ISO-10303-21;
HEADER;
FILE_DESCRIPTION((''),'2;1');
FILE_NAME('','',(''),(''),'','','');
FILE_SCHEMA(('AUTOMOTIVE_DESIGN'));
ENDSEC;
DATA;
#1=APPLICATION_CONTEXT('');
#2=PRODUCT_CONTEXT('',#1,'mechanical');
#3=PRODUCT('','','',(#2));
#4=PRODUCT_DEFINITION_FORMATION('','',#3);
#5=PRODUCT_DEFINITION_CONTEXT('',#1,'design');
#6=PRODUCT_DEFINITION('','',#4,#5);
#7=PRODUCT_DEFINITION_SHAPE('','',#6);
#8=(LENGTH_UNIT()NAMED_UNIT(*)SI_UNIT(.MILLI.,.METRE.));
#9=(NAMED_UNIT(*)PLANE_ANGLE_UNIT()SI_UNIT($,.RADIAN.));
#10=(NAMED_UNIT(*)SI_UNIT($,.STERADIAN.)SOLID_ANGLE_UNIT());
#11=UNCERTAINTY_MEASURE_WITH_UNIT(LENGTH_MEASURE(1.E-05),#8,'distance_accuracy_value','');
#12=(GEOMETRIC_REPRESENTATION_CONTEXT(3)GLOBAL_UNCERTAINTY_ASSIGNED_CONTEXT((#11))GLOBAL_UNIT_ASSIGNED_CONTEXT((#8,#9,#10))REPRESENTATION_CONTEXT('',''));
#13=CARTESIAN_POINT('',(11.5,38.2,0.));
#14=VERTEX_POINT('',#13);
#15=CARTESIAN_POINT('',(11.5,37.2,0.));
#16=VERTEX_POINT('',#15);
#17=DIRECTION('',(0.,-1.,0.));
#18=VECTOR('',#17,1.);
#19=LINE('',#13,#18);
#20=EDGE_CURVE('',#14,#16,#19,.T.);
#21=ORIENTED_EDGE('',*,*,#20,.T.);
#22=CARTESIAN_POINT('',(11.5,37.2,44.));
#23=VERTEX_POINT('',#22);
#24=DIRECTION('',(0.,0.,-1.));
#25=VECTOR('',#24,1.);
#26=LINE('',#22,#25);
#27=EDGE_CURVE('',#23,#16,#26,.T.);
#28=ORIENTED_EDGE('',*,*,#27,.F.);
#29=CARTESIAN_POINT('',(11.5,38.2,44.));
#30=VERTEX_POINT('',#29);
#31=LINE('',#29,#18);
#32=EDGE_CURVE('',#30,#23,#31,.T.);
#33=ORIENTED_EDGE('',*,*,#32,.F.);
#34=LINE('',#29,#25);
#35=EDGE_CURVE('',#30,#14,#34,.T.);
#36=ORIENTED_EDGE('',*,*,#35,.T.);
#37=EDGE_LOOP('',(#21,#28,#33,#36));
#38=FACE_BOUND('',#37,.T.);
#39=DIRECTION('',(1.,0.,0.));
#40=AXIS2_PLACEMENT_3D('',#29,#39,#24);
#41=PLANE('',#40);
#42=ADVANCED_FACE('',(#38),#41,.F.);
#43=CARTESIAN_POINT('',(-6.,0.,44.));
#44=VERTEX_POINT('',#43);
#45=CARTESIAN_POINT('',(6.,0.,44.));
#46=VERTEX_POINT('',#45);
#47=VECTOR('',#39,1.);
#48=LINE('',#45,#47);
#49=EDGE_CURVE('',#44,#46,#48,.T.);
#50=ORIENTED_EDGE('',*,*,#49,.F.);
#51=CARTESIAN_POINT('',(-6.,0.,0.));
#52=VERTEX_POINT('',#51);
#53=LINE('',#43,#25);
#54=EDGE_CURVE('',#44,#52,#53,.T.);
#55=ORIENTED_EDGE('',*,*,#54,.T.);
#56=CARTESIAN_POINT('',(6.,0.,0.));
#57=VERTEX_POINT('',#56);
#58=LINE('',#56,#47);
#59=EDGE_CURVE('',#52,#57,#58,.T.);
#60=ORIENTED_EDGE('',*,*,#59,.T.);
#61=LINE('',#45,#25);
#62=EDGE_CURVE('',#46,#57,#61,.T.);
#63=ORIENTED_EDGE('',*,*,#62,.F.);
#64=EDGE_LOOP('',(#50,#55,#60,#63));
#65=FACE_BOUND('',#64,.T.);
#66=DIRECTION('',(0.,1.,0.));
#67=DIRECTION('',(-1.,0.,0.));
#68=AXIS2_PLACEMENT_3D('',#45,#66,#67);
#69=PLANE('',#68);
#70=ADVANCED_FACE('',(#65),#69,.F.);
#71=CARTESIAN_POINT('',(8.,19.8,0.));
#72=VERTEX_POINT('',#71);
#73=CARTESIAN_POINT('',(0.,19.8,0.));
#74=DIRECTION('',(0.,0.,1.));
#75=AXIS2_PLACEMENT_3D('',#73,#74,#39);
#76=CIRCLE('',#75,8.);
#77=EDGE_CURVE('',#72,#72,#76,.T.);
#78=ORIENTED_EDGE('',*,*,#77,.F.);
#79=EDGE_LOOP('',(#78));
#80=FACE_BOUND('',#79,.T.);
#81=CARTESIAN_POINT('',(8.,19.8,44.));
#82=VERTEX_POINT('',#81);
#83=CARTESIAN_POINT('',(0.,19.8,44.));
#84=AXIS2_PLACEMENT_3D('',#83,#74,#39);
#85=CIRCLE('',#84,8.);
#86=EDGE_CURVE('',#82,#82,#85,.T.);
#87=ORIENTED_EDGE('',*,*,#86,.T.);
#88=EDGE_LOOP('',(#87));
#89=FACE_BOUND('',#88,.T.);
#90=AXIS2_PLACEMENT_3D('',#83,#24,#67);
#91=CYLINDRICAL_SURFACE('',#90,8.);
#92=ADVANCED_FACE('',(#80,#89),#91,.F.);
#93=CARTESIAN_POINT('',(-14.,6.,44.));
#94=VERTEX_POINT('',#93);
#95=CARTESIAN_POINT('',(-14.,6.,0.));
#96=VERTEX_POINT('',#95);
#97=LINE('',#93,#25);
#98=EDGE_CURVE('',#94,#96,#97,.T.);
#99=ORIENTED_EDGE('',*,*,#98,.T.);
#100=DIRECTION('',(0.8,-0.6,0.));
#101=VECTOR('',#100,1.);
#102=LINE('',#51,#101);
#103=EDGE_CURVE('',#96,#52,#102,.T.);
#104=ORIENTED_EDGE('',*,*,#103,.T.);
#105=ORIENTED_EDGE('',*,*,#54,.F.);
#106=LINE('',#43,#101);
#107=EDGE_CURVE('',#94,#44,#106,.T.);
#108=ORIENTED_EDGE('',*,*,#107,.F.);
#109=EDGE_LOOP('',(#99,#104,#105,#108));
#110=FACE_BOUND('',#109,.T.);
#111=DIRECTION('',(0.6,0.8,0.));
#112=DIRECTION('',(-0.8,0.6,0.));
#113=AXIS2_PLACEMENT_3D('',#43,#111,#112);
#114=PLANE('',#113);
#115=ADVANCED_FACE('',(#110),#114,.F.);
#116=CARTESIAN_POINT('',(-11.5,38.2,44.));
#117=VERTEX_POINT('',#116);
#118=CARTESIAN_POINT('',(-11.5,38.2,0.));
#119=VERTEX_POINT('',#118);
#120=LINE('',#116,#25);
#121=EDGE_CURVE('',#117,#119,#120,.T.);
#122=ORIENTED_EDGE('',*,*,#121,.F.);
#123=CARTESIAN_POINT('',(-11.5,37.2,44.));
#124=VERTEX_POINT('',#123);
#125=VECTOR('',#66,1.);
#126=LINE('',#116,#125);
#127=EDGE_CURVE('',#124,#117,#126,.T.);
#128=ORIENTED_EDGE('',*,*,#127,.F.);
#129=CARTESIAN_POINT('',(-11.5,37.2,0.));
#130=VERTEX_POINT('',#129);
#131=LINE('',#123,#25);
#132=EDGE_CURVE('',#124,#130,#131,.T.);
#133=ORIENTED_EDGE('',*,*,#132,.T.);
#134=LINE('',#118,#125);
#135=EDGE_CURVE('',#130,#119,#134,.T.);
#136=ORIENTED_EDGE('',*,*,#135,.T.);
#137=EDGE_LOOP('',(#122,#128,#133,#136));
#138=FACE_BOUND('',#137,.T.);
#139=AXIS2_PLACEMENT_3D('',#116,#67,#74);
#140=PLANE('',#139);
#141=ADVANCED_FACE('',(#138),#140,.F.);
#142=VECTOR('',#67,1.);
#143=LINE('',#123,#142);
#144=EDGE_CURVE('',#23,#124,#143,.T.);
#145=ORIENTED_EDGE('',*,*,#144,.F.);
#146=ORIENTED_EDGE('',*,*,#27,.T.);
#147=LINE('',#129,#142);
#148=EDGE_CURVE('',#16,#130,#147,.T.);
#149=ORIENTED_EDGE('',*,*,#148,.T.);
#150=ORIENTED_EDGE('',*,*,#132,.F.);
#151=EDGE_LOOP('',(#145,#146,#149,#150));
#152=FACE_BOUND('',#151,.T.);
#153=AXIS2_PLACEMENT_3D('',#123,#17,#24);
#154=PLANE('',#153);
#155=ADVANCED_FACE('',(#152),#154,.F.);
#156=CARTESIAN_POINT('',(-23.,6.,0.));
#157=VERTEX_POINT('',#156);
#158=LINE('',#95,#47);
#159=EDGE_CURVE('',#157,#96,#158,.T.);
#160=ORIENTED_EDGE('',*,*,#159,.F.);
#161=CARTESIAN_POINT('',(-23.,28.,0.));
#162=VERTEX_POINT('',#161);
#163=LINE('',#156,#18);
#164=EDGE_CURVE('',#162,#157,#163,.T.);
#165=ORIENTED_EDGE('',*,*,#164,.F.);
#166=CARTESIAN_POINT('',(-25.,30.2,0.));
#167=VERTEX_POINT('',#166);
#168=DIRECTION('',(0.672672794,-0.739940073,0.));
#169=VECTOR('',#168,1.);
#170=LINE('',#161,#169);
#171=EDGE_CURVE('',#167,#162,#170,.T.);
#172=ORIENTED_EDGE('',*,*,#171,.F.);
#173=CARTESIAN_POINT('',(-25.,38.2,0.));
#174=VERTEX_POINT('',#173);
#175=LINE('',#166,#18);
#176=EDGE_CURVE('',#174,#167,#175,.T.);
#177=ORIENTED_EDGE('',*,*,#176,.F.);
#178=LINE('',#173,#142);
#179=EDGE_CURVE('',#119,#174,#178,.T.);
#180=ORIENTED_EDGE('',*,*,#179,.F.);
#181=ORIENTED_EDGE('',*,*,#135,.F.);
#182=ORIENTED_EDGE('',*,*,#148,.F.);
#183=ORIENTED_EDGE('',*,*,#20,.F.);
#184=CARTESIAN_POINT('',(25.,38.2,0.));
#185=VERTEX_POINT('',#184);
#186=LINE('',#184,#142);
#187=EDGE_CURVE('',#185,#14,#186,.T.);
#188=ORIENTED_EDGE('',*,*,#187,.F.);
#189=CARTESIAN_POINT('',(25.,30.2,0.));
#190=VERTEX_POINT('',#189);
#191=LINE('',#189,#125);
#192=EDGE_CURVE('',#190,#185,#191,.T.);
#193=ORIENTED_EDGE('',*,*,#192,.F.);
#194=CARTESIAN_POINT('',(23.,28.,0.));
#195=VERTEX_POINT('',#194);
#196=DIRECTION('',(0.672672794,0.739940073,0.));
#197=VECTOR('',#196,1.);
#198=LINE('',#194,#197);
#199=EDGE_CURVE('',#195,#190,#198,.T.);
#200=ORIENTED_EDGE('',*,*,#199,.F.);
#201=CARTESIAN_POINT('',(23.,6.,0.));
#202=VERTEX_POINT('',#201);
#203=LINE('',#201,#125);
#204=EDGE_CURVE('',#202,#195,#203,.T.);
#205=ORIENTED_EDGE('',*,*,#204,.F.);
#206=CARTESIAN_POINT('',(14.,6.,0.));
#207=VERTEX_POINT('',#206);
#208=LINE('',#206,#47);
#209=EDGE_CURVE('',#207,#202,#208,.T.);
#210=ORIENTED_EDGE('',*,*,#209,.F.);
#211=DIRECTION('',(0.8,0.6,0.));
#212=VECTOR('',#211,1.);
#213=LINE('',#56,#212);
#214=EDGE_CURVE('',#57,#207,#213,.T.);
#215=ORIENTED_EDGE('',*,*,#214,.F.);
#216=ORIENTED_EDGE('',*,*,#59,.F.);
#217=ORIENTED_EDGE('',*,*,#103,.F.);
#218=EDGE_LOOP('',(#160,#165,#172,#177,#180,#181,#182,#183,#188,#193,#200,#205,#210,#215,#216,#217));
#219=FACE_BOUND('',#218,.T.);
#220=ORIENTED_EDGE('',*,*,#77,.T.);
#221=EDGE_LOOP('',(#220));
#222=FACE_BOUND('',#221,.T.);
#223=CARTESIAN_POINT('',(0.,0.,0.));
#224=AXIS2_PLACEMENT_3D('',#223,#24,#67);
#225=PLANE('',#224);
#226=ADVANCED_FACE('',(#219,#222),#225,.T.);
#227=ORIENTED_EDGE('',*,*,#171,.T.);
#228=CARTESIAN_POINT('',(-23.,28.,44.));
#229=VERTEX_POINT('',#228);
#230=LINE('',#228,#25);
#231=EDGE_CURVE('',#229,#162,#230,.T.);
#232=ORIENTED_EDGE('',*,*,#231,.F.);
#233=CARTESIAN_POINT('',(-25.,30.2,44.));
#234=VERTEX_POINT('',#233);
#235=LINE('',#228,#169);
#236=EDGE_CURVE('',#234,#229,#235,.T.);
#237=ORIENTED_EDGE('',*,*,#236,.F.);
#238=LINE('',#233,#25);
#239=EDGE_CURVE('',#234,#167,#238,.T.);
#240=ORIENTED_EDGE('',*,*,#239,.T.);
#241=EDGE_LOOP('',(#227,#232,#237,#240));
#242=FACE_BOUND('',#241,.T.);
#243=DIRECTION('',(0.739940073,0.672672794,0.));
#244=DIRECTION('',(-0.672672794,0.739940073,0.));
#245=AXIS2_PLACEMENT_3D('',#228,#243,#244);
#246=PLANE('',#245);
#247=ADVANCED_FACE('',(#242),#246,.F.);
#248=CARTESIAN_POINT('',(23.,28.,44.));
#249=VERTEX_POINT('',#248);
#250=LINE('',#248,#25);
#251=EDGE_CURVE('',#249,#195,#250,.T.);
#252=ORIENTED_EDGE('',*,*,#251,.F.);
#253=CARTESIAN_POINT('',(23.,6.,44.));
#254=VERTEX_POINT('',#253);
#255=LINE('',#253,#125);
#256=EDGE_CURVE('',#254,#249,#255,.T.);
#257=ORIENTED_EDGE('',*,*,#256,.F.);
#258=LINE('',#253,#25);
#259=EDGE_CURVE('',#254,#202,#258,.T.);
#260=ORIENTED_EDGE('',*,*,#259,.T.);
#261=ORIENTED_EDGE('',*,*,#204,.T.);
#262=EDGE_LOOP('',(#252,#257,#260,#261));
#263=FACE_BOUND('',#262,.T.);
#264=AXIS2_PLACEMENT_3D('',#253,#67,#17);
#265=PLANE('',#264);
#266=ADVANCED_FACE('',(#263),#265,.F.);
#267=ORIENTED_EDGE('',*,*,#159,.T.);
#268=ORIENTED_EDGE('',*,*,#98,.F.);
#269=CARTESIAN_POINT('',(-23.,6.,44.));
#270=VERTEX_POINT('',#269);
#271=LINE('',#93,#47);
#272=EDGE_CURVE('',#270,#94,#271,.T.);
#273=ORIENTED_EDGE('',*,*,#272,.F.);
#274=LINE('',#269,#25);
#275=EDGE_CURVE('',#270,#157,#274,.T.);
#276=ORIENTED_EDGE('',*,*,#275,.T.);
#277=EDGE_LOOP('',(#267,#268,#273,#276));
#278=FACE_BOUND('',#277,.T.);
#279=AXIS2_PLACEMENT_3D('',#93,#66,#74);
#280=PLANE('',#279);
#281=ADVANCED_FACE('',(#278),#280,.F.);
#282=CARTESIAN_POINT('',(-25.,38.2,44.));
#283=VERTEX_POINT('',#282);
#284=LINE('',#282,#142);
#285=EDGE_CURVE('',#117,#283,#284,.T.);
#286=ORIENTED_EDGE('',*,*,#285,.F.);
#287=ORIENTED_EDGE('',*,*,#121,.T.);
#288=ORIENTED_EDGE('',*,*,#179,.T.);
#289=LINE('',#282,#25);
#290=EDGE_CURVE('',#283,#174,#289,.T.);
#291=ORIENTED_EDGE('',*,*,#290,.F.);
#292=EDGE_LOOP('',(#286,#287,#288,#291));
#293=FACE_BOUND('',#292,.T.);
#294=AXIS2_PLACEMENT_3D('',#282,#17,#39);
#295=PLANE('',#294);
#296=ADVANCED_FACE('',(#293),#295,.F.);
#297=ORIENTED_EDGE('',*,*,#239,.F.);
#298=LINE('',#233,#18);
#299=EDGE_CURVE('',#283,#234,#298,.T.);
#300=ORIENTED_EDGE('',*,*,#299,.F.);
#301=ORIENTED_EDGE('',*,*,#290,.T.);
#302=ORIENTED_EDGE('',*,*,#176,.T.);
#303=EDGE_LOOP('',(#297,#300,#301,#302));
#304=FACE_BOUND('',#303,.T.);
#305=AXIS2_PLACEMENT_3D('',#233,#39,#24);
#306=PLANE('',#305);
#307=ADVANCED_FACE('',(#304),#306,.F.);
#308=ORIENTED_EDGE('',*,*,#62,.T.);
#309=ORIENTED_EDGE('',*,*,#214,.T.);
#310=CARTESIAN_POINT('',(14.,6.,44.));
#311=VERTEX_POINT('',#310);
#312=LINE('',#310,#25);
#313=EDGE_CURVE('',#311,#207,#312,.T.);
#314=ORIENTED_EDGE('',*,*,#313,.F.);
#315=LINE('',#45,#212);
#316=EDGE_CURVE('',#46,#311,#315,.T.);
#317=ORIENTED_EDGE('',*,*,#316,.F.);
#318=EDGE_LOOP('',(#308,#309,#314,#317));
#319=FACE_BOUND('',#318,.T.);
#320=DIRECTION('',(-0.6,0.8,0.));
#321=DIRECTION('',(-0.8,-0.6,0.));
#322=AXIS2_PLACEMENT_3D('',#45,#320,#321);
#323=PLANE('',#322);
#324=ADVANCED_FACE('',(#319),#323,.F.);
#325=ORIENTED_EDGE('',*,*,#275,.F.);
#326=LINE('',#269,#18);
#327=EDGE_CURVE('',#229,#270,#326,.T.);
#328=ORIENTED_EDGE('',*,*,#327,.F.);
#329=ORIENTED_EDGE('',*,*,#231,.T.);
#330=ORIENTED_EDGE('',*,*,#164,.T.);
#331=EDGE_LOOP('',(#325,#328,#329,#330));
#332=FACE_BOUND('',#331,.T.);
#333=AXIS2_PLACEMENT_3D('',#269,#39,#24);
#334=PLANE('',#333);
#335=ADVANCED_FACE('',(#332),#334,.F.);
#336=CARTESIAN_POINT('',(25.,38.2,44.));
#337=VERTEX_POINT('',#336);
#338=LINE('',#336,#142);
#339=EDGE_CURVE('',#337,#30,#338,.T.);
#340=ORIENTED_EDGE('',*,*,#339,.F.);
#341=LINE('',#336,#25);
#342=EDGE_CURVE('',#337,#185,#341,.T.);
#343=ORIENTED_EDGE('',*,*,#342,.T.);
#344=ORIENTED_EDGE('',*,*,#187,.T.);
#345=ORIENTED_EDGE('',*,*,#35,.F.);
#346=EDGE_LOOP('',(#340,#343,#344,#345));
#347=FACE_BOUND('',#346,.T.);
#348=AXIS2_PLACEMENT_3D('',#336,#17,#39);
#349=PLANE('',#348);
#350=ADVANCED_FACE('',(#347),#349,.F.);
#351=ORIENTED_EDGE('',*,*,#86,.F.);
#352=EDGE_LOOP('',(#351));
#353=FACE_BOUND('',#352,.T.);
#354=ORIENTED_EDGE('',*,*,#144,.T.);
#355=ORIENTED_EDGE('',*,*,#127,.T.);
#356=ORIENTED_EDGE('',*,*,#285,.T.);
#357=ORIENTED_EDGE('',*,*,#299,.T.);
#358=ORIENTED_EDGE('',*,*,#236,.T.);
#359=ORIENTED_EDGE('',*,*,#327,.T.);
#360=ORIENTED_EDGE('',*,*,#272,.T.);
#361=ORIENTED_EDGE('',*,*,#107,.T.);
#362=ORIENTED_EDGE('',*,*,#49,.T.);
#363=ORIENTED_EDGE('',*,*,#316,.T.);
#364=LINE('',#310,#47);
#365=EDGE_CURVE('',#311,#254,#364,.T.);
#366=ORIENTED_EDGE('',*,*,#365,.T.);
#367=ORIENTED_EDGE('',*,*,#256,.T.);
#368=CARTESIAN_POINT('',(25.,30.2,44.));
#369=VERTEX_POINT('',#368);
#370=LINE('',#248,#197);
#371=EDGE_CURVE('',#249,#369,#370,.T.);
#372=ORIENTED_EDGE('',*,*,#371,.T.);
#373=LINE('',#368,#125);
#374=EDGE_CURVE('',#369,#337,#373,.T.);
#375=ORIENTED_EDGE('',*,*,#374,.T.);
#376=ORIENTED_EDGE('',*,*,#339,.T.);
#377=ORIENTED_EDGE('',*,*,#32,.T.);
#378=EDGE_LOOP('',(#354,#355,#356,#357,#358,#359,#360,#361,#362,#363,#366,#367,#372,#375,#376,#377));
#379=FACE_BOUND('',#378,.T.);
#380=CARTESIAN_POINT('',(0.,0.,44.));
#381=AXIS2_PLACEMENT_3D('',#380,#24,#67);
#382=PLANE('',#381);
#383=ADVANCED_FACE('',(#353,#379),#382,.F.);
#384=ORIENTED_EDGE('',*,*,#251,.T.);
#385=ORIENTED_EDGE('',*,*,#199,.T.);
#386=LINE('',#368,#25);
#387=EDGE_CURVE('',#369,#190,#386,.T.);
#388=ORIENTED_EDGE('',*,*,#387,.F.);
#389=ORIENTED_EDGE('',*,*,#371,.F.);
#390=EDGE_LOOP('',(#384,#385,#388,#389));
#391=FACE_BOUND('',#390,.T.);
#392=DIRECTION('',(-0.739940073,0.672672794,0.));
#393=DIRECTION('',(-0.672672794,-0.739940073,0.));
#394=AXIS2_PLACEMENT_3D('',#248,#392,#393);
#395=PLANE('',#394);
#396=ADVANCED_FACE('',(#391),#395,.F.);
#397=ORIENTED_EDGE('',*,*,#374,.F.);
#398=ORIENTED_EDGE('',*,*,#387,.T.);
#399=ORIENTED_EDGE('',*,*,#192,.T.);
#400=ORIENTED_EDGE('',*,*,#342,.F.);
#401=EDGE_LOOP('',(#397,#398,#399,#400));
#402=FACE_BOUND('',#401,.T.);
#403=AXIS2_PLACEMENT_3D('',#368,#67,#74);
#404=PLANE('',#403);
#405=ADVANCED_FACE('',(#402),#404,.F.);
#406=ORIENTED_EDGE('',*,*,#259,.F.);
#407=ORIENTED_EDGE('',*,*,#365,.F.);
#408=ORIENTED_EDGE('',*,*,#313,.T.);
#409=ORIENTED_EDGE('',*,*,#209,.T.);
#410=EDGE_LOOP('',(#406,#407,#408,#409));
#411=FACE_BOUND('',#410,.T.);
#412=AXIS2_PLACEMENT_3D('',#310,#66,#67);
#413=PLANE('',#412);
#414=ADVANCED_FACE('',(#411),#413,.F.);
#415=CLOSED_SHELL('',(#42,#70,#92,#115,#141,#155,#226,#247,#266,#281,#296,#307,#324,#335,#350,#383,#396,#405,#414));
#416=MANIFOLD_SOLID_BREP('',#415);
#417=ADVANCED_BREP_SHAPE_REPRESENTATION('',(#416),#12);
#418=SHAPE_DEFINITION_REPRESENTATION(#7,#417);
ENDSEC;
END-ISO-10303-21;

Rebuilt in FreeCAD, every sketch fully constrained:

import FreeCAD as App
import Part
import Sketcher
Q = App.Units.Quantity


def add_polygon(sketch, points):
    """Adds a closed chain of lines whose ends are joined by coincident constraints."""
    first, n = sketch.GeometryCount, len(points)
    for a, b in zip(points, points[1:] + points[:1]):
        sketch.addGeometry(Part.LineSegment(App.Vector(*a, 0), App.Vector(*b, 0)), False)
    for i in range(n):
        sketch.addConstraint(Sketcher.Constraint("Coincident", first + i, 2, first + (i + 1) % n, 1))

doc = App.newDocument("Part")
body = doc.addObject("PartDesign::Body", "Body")

# Sketch on XY plane
sketch1 = doc.addObject("Sketcher::SketchObject", "Sketch")
body.addObject(sketch1)
sketch1.AttachmentSupport = (doc.XY_Plane, [""])
sketch1.MapMode = "FlatFace"
add_polygon(sketch1, [(-6, 0), (6, 0), (14, 6), (23, 6), (23, 28), (25, 30.2), (25, 38.2), (11.5, 38.2), (11.5, 37.2), (-11.5, 37.2), (-11.5, 38.2), (-25, 38.2), (-25, 30.2), (-23, 28), (-23, 6), (-14, 6)])  # lines 0-15
sketch1.addGeometry(Part.Circle(App.Vector(0, 19.8, 0), App.Vector(0, 0, 1), 8), False)  # 16
sketch1.addConstraint([
    Sketcher.Constraint("Horizontal", 0),
    Sketcher.Constraint("Horizontal", 2),
    Sketcher.Constraint("Vertical", 3),
    Sketcher.Constraint("Vertical", 5),
    Sketcher.Constraint("Horizontal", 6),
    Sketcher.Constraint("Vertical", 7),
    Sketcher.Constraint("Horizontal", 8),
    Sketcher.Constraint("Vertical", 9),
    Sketcher.Constraint("Horizontal", 10),
    Sketcher.Constraint("Vertical", 11),
    Sketcher.Constraint("Vertical", 13),
    Sketcher.Constraint("Horizontal", 14),
    Sketcher.Constraint("Symmetric", 0, 2, 15, 2, -1, 1),
    Sketcher.Constraint("Symmetric", 6, 2, 9, 2, -2),
    Sketcher.Constraint("Symmetric", 4, 2, 11, 2, -2),
    Sketcher.Constraint("Symmetric", 3, 2, 12, 2, -2),
    Sketcher.Constraint("Symmetric", 1, 2, 14, 2, -2),
    Sketcher.Constraint("PointOnObject", 16, 3, -2),
    Sketcher.Constraint("Diameter", 16, Q("16 mm")),
    Sketcher.Constraint("DistanceX", 0, 1, 0, 2, Q("12 mm")),
    Sketcher.Constraint("DistanceX", 2, 1, 2, 2, Q("9 mm")),
    Sketcher.Constraint("DistanceX", 8, 2, 8, 1, Q("23 mm")),
    Sketcher.Constraint("DistanceY", 3, 1, 3, 2, Q("22 mm")),
    Sketcher.Constraint("DistanceY", 5, 1, 5, 2, Q("8 mm")),
    Sketcher.Constraint("DistanceY", 7, 2, 7, 1, Q("1 mm")),
    Sketcher.Constraint("Distance", 1, Q("10 mm")),
    Sketcher.Constraint("DistanceX", 6, 2, 6, 1, Q("13.5 mm")),
    Sketcher.Constraint("DistanceX", -1, 1, 1, 2, Q("14 mm")),
    Sketcher.Constraint("DistanceY", -1, 1, 16, 3, Q("19.8 mm")),
    Sketcher.Constraint("DistanceY", -1, 1, 4, 2, Q("30.2 mm")),
])
pad1 = doc.addObject("PartDesign::Pad", "Pad")
body.addObject(pad1)
pad1.Profile = sketch1
pad1.Length = 44

doc.recompute()
